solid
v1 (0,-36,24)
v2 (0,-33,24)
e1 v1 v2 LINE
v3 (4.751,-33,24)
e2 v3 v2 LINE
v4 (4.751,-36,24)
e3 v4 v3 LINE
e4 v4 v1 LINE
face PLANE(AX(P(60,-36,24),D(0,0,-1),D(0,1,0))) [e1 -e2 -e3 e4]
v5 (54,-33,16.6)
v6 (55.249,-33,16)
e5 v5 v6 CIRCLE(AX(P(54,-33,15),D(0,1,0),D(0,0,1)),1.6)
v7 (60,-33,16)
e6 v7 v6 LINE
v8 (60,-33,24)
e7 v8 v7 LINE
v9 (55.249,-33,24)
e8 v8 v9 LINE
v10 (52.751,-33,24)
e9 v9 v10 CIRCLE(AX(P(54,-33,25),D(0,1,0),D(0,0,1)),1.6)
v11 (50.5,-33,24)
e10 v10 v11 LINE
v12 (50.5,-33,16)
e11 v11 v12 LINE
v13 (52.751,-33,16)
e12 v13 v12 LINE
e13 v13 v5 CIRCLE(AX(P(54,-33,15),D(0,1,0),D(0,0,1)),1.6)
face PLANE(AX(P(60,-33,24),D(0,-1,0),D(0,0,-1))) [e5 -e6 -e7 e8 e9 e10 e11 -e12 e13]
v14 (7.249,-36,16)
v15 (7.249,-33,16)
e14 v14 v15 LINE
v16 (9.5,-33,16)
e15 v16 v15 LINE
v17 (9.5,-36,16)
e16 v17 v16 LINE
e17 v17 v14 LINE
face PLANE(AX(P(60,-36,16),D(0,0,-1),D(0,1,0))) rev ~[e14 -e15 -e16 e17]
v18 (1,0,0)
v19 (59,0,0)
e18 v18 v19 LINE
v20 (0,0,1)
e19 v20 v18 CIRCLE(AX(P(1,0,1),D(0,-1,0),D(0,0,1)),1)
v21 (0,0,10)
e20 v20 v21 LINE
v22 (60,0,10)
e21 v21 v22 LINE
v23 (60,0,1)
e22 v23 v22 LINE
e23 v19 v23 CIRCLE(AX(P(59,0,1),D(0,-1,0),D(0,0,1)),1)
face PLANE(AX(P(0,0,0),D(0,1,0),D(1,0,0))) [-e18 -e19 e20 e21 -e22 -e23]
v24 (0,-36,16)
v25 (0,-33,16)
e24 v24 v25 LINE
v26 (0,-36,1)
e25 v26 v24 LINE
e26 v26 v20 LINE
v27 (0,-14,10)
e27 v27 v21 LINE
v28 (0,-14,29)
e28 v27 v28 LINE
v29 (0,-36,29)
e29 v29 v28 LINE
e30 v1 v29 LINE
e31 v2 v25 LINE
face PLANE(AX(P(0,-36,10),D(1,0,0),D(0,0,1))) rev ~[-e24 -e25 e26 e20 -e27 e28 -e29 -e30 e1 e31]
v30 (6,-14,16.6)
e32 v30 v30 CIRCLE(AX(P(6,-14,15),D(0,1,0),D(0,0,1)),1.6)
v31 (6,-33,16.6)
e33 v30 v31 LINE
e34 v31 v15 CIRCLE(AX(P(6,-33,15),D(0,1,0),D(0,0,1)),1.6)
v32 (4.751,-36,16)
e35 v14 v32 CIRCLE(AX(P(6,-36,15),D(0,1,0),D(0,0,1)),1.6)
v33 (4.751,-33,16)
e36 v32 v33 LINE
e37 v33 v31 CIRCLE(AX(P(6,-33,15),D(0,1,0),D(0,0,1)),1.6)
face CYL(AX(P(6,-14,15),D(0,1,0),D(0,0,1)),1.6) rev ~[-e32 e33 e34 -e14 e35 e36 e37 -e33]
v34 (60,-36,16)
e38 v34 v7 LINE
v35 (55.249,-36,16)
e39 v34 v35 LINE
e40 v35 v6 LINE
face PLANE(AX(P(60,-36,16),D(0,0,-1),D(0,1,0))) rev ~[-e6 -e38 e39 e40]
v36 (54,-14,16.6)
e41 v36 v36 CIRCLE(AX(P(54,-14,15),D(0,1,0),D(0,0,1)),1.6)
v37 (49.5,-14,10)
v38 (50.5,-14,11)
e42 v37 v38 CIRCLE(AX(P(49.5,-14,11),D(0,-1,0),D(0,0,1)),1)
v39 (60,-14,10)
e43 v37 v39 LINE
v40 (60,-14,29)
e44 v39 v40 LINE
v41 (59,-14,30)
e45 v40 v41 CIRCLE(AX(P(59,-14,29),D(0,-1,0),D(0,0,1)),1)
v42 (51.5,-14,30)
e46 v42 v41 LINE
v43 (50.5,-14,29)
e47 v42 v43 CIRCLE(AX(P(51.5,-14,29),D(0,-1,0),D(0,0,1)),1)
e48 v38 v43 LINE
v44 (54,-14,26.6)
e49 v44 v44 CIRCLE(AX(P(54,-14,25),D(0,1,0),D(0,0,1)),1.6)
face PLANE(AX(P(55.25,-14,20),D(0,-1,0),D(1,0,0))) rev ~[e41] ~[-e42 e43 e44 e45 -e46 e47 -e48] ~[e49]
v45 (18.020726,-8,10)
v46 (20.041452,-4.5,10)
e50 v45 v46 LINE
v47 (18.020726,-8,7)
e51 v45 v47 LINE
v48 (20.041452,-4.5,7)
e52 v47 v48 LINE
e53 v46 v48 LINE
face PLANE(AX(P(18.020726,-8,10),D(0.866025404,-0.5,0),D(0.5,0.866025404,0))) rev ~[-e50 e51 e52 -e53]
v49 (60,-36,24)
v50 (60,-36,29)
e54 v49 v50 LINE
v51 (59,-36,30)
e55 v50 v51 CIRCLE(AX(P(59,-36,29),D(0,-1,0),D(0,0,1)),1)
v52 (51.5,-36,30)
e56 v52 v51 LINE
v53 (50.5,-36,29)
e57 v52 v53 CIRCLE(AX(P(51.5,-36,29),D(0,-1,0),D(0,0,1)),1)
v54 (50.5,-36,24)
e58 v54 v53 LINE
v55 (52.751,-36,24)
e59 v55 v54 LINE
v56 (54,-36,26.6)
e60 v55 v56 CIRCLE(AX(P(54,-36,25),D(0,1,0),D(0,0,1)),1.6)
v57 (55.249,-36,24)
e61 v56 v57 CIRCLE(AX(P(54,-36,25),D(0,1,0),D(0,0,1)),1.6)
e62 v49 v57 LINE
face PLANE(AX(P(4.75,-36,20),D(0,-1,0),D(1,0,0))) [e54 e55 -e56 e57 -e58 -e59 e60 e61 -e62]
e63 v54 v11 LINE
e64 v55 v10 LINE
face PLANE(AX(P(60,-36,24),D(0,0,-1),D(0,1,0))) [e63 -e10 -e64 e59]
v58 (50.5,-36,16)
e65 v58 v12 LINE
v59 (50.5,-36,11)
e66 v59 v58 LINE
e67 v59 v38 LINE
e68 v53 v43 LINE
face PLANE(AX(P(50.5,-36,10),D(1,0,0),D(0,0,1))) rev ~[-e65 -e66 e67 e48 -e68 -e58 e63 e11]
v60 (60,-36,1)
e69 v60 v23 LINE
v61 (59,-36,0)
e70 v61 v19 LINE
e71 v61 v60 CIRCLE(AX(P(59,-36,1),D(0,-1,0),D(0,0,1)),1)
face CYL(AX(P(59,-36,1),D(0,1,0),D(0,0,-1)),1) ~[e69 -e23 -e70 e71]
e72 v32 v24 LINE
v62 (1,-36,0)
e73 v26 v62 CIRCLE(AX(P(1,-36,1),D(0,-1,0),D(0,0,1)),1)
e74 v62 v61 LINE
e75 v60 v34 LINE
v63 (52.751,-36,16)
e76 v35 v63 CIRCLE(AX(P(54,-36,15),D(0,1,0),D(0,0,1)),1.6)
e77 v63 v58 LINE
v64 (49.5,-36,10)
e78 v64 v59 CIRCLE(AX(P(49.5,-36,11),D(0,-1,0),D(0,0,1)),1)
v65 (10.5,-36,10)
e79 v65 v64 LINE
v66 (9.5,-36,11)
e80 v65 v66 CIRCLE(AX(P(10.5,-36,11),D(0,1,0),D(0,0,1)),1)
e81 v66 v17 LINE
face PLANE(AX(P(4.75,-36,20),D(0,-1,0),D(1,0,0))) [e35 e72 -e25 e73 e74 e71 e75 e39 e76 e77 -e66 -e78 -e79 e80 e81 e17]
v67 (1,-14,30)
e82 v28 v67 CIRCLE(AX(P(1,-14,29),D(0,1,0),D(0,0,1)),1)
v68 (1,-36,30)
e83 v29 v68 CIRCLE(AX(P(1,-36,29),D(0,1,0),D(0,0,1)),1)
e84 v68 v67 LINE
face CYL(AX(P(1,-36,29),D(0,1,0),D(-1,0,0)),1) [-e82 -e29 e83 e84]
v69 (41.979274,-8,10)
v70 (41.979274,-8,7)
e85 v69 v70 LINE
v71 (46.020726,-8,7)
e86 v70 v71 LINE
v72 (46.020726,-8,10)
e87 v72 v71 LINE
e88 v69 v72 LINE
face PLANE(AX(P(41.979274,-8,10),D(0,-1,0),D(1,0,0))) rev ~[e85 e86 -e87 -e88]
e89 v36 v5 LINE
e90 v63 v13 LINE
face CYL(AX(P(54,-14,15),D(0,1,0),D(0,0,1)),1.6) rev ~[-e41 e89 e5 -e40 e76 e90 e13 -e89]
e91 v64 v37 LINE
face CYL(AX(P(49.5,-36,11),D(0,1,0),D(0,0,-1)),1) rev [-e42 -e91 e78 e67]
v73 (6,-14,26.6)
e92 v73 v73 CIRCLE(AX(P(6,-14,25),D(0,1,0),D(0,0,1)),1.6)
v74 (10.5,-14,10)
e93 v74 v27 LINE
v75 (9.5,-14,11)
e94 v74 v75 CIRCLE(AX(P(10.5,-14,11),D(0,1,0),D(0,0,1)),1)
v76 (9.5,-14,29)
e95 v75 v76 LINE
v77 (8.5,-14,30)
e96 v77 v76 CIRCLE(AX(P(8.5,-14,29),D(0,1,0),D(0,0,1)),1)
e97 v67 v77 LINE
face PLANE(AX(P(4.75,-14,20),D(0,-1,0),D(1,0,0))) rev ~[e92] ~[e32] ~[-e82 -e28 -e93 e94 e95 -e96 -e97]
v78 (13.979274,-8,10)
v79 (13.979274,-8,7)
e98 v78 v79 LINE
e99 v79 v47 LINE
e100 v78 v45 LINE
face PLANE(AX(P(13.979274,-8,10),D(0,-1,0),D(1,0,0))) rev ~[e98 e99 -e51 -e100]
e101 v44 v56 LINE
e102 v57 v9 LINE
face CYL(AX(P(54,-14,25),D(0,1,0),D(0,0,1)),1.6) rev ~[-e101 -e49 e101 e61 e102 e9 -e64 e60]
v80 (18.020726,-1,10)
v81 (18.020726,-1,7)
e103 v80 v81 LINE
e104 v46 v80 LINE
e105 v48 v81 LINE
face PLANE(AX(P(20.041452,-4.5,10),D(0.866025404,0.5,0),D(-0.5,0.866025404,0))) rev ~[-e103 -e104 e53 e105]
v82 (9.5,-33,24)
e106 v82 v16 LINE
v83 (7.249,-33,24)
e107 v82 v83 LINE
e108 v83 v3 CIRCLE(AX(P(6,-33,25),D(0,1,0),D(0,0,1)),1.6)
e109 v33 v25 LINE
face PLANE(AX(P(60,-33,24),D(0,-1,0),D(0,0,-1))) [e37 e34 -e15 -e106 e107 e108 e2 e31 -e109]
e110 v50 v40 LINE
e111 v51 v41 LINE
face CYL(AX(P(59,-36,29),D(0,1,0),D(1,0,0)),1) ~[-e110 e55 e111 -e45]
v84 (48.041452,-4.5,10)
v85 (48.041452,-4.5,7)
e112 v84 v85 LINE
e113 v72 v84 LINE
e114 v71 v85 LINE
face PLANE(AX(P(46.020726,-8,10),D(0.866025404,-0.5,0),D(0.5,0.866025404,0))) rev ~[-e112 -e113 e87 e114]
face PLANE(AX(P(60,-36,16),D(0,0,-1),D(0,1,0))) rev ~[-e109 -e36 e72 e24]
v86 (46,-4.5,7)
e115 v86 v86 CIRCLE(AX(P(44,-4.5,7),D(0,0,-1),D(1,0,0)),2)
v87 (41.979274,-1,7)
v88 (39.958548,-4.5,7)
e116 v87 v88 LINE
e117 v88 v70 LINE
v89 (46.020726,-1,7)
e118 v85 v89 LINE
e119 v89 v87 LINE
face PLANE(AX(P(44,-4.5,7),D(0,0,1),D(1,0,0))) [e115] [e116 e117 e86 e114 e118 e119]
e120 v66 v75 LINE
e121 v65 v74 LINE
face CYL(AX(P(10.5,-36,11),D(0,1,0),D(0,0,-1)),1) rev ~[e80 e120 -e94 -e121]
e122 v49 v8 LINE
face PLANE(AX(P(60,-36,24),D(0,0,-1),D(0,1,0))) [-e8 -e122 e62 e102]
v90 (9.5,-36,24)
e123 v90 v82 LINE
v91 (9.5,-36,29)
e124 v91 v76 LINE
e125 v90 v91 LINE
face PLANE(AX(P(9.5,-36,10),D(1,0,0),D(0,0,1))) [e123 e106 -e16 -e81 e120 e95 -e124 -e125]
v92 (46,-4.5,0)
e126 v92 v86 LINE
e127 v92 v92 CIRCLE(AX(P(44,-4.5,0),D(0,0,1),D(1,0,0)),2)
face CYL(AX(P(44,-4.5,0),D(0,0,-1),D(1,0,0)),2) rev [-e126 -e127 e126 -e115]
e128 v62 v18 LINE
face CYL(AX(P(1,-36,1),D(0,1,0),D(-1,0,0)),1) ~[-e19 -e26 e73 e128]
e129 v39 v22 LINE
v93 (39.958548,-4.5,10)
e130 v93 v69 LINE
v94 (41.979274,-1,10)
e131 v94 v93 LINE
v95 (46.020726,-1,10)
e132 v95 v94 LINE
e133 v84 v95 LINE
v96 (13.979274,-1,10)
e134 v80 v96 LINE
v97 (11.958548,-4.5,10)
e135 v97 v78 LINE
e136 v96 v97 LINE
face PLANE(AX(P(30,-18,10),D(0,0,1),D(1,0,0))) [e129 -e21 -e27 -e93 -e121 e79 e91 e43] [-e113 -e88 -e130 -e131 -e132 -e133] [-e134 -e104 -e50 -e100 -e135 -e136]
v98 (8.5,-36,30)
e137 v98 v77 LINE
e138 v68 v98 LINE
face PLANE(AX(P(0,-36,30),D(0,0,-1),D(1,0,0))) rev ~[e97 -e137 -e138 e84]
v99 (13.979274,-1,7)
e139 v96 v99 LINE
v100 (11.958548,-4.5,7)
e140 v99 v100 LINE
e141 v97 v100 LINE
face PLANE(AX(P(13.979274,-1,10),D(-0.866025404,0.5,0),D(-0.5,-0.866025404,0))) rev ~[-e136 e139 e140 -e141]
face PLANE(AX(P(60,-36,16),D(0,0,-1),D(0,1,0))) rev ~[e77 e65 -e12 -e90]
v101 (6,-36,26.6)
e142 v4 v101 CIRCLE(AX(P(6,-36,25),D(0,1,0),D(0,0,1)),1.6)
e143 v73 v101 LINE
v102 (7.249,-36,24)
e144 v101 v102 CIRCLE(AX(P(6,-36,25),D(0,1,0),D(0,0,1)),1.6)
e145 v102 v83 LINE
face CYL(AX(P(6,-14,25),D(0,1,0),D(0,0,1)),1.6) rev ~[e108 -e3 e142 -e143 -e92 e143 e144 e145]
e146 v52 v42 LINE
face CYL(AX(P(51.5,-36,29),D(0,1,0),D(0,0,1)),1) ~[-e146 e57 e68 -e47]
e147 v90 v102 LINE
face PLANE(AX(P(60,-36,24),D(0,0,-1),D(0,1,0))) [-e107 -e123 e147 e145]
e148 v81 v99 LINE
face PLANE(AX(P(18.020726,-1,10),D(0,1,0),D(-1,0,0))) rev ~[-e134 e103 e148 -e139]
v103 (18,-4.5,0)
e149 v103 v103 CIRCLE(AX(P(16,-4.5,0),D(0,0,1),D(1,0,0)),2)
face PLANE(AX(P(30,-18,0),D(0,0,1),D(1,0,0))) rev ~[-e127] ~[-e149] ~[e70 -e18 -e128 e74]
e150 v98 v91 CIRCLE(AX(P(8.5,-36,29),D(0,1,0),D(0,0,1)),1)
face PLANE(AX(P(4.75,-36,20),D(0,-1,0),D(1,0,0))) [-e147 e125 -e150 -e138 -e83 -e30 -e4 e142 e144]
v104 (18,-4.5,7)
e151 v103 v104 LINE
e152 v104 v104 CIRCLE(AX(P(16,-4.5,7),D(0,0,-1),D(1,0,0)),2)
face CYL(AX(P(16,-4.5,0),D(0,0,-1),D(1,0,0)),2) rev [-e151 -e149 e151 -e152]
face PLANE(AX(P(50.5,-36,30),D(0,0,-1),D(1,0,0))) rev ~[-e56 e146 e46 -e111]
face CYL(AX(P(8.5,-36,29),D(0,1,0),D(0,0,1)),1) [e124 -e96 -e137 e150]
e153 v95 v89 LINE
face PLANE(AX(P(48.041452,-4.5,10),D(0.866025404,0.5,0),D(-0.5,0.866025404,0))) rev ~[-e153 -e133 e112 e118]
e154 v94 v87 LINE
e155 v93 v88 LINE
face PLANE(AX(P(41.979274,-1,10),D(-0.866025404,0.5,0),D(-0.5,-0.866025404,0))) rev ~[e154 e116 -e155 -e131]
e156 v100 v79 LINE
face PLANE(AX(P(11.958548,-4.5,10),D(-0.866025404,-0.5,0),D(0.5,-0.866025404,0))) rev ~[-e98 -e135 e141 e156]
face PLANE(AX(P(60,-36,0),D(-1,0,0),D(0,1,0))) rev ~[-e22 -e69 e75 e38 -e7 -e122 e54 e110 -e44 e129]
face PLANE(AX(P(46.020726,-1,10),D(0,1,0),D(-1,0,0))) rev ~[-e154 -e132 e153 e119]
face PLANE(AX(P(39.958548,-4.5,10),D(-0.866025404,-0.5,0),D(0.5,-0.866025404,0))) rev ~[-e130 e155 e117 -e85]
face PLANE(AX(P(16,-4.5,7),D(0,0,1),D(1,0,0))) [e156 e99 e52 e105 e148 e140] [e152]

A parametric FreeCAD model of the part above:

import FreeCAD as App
import Part
import Sketcher
from FreeCAD import Vector
Q = App.Units.Quantity


def edges_at(feature, points):
    """Names of the edges that pass closest to the given points."""
    edges = feature.Shape.Edges
    near = lambda p: min(range(len(edges)), key=lambda i: edges[i].distToShape(Part.Vertex(*p))[0])
    return sorted({f"Edge{near(p) + 1}" for p in points})


def add_polygon(sketch, points):
    """Adds a closed chain of lines whose ends are joined by coincident constraints."""
    first, n = sketch.GeometryCount, len(points)
    for a, b in zip(points, points[1:] + points[:1]):
        sketch.addGeometry(Part.LineSegment(App.Vector(*a, 0), App.Vector(*b, 0)), False)
    for i in range(n):
        sketch.addConstraint(Sketcher.Constraint("Coincident", first + i, 2, first + (i + 1) % n, 1))

doc = App.newDocument("Part")
body = doc.addObject("PartDesign::Body", "Body")

# Sketch on XY plane
sketch1 = body.newObject("Sketcher::SketchObject", "Sketch")
sketch1.AttachmentSupport = (doc.getObject("XY_Plane"), [""])
sketch1.MapMode = "FlatFace"
add_polygon(sketch1, [(0, 0), (0, -36), (60, -36), (60, 0)])  # lines 0-3
sketch1.addGeometry(Part.Circle(Vector(16, -4.5, 0), Vector(0, 0, 1), 2), False)  # 4
sketch1.addGeometry(Part.Circle(Vector(44, -4.5, 0), Vector(0, 0, 1), 2), False)  # 5
sketch1.addConstraint([
    Sketcher.Constraint("Vertical", 0),
    Sketcher.Constraint("Horizontal", 1),
    Sketcher.Constraint("Vertical", 2),
    Sketcher.Constraint("Horizontal", 3),
    Sketcher.Constraint("Coincident", 3, 2, -1, 1),
    Sketcher.Constraint("Equal", 4, 5),
    Sketcher.Constraint("Horizontal", 4, 3, 5, 3),
    Sketcher.Constraint("Diameter", 4, Q("4 mm")),
    Sketcher.Constraint("DistanceX", 1, 1, 1, 2, Q("60 mm")),
    Sketcher.Constraint("DistanceY", 0, 2, 0, 1, Q("36 mm")),
    Sketcher.Constraint("DistanceX", -1, 1, 4, 3, Q("16 mm")),
    Sketcher.Constraint("DistanceX", -1, 1, 5, 3, Q("44 mm")),
    Sketcher.Constraint("DistanceY", 4, 3, -1, 1, Q("4.5 mm")),
])
pad1 = body.newObject("PartDesign::Pad", "Pad")
pad1.Profile = sketch1
pad1.Length = 10

# Sketch on XZ plane
sketch2 = body.newObject("Sketcher::SketchObject", "Sketch001")
sketch2.AttachmentSupport = (doc.getObject("XZ_Plane"), [""])
sketch2.MapMode = "FlatFace"
sketch2.AttachmentOffset = App.Placement(Vector(0, 0, 36), App.Rotation())
add_polygon(sketch2, [(0, 30), (0, 10), (10, 10), (10, 30)])  # lines 0-3
add_polygon(sketch2, [(50, 30), (50, 10), (60, 10), (60, 30)])  # lines 4-7
sketch2.addConstraint([
    Sketcher.Constraint("Vertical", 0),
    Sketcher.Constraint("Horizontal", 1),
    Sketcher.Constraint("Vertical", 2),
    Sketcher.Constraint("Horizontal", 3),
    Sketcher.Constraint("Vertical", 4),
    Sketcher.Constraint("Horizontal", 5),
    Sketcher.Constraint("Vertical", 6),
    Sketcher.Constraint("Horizontal", 7),
    Sketcher.Constraint("PointOnObject", 0, 2, -2),
    Sketcher.Constraint("Horizontal", 1, 2, 4, 2),
    Sketcher.Constraint("Horizontal", 3, 2, 6, 2),
    Sketcher.Constraint("Equal", 3, 5),
    Sketcher.Constraint("DistanceY", 0, 2, 0, 1, Q("20 mm")),
    Sketcher.Constraint("DistanceX", 1, 1, 1, 2, Q("9.5 mm")),
    Sketcher.Constraint("DistanceY", -1, 1, 0, 2, Q("10 mm")),
    Sketcher.Constraint("DistanceX", -1, 1, 5, 2, Q("60 mm")),
])
pad2 = body.newObject("PartDesign::Pad", "Pad001")
pad2.Profile = sketch2
pad2.Length = 22
pad2.Reversed = True

# Sketch on XZ plane
sketch3 = body.newObject("Sketcher::SketchObject", "Sketch002")
sketch3.AttachmentSupport = (doc.getObject("XZ_Plane"), [""])
sketch3.MapMode = "FlatFace"
sketch3.AttachmentOffset = App.Placement(Vector(0, 0, 14), App.Rotation())
sketch3.addGeometry(Part.Circle(Vector(6, 15, 0), Vector(0, 0, 1), 1.6), False)
sketch3.addConstraint([
    Sketcher.Constraint("Diameter", 0, Q("3.2 mm")),
    Sketcher.Constraint("DistanceX", -1, 1, 0, 3, Q("6 mm")),
    Sketcher.Constraint("DistanceY", -1, 1, 0, 3, Q("15 mm")),
])
pocket1 = body.newObject("PartDesign::Pocket", "Pocket")
pocket1.Profile = sketch3
pocket1.Type = "UpToFirst"
pocket1.Reversed = True

# Sketch on XZ plane
sketch4 = body.newObject("Sketcher::SketchObject", "Sketch003")
sketch4.AttachmentSupport = (doc.getObject("XZ_Plane"), [""])
sketch4.MapMode = "FlatFace"
sketch4.AttachmentOffset = App.Placement(Vector(0, 0, 14), App.Rotation())
sketch4.addGeometry(Part.Circle(Vector(54, 15, 0), Vector(0, 0, 1), 1.6), False)
sketch4.addConstraint([
    Sketcher.Constraint("Diameter", 0, Q("3.2 mm")),
    Sketcher.Constraint("DistanceX", -1, 1, 0, 3, Q("54 mm")),
    Sketcher.Constraint("DistanceY", -1, 1, 0, 3, Q("15 mm")),
])
pocket2 = body.newObject("PartDesign::Pocket", "Pocket001")
pocket2.Profile = sketch4
pocket2.Type = "UpToFirst"
pocket2.Reversed = True

# Sketch on XZ plane
sketch5 = body.newObject("Sketcher::SketchObject", "Sketch004")
sketch5.AttachmentSupport = (doc.getObject("XZ_Plane"), [""])
sketch5.MapMode = "FlatFace"
sketch5.AttachmentOffset = App.Placement(Vector(0, 0, 14), App.Rotation())
sketch5.addGeometry(Part.Circle(Vector(54, 25, 0), Vector(0, 0, 1), 1.6), False)
sketch5.addConstraint([
    Sketcher.Constraint("Diameter", 0, Q("3.2 mm")),
    Sketcher.Constraint("DistanceX", -1, 1, 0, 3, Q("54 mm")),
    Sketcher.Constraint("DistanceY", -1, 1, 0, 3, Q("25 mm")),
])
pocket3 = body.newObject("PartDesign::Pocket", "Pocket002")
pocket3.Profile = sketch5
pocket3.Type = "UpToFirst"
pocket3.Reversed = True

# Sketch on XZ plane
sketch6 = body.newObject("Sketcher::SketchObject", "Sketch005")
sketch6.AttachmentSupport = (doc.getObject("XZ_Plane"), [""])
sketch6.MapMode = "FlatFace"
sketch6.AttachmentOffset = App.Placement(Vector(0, 0, 14), App.Rotation())
sketch6.addGeometry(Part.Circle(Vector(6, 25, 0), Vector(0, 0, 1), 1.6), False)
sketch6.addConstraint([
    Sketcher.Constraint("Diameter", 0, Q("3.2 mm")),
    Sketcher.Constraint("DistanceX", -1, 1, 0, 3, Q("6 mm")),
    Sketcher.Constraint("DistanceY", -1, 1, 0, 3, Q("25 mm")),
])
pocket4 = body.newObject("PartDesign::Pocket", "Pocket003")
pocket4.Profile = sketch6
pocket4.Type = "UpToFirst"
pocket4.Reversed = True

# Sketch on XY plane
sketch7 = body.newObject("Sketcher::SketchObject", "Sketch006")
sketch7.AttachmentSupport = (doc.getObject("XY_Plane"), [""])
sketch7.MapMode = "FlatFace"
sketch7.AttachmentOffset = App.Placement(Vector(0, 0, 10), App.Rotation())
add_polygon(sketch7, [(14, -1), (12, -4.5), (14, -8), (18, -8), (20, -4.5), (18, -1)])  # lines 0-5
sketch7.addConstraint([
    Sketcher.Constraint("Horizontal", 2),
    Sketcher.Constraint("Horizontal", 5),
    Sketcher.Constraint("Parallel", 0, 3),
    Sketcher.Constraint("Parallel", 1, 4),
    Sketcher.Constraint("Horizontal", 0, 2, 3, 2),
    Sketcher.Constraint("Vertical", 2, 2, 4, 2),
    Sketcher.Constraint("Vertical", 1, 2, 5, 2),
    Sketcher.Constraint("Angle", 0, Q("-120 deg")),
    Sketcher.Constraint("DistanceY", 1, 2, -1, 1, Q("8 mm")),
    Sketcher.Constraint("DistanceY", 4, 2, -1, 1, Q("1 mm")),
    Sketcher.Constraint("DistanceX", 2, 1, 2, 2, Q("4.041452 mm")),
    Sketcher.Constraint("DistanceX", -1, 1, 0, 2, Q("11.958548 mm")),
])
pocket5 = body.newObject("PartDesign::Pocket", "Pocket004")
pocket5.Profile = sketch7
pocket5.Length = 3
doc.recompute()

linearpattern = body.newObject("PartDesign::LinearPattern", "LinearPattern")
linearpattern.Originals = [pocket5]
linearpattern.Direction = (doc.getObject("X_Axis"), [""])
linearpattern.Mode = "offset"
linearpattern.Offset = 28
linearpattern.Occurrences = 2
body.Tip = linearpattern
doc.recompute()

fillet = body.newObject("PartDesign::Fillet", "Fillet")
fillet.Base = (linearpattern, edges_at(linearpattern, [
    (0, -25, 30),
    (9.5, -25, 30),
    (9.5, -25, 10),
    (60, -25, 30),
    (50.5, -25, 10),
    (50.5, -25, 30),
    (60, -18, 0),
    (0, -18, 0),
]))
fillet.Radius = 1

# Sketch on YZ plane
sketch8 = body.newObject("Sketcher::SketchObject", "Sketch007")
sketch8.AttachmentSupport = (doc.getObject("YZ_Plane"), [""])
sketch8.MapMode = "FlatFace"
sketch8.AttachmentOffset = App.Placement(Vector(0, 0, 60), App.Rotation())
add_polygon(sketch8, [(-33, 24), (-36, 24), (-36, 16), (-33, 16)])  # lines 0-3
sketch8.addConstraint([
    Sketcher.Constraint("Horizontal", 0),
    Sketcher.Constraint("Vertical", 1),
    Sketcher.Constraint("Horizontal", 2),
    Sketcher.Constraint("Vertical", 3),
    Sketcher.Constraint("DistanceX", 0, 2, 0, 1, Q("3 mm")),
    Sketcher.Constraint("DistanceY", 1, 2, 1, 1, Q("8 mm")),
    Sketcher.Constraint("DistanceX", 0, 2, -1, 1, Q("36 mm")),
    Sketcher.Constraint("DistanceY", -1, 1, 0, 2, Q("24 mm")),
])
pocket6 = body.newObject("PartDesign::Pocket", "Pocket005")
pocket6.Profile = sketch8
pocket6.Type = "ThroughAll"

doc.recompute()
